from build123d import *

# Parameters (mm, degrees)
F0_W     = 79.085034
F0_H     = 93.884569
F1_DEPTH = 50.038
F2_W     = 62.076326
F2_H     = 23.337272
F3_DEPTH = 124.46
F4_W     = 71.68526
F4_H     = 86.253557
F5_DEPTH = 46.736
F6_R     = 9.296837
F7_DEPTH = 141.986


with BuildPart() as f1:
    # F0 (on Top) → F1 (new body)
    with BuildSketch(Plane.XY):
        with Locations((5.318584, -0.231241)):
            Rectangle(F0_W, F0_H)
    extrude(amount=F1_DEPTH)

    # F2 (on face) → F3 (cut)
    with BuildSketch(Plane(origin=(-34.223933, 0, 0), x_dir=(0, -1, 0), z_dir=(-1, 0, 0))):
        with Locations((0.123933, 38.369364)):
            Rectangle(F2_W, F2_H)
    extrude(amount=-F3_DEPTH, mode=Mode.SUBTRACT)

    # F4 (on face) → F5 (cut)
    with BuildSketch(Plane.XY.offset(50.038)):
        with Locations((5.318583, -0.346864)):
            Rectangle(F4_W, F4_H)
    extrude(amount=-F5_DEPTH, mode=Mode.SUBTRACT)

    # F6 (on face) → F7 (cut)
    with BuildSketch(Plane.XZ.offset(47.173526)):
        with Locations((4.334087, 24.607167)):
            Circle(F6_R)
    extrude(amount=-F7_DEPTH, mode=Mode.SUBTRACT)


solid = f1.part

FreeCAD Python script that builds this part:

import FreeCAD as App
import Part
import Sketcher
Q = App.Units.Quantity

doc = App.newDocument("Part")
body = doc.addObject("PartDesign::Body", "Body")

# Sketch on XY plane
sketch1 = body.newObject("Sketcher::SketchObject", "Sketch")
sketch1.AttachmentSupport = (doc.getObject("XY_Plane"), [""])
sketch1.MapMode = "FlatFace"
sketch1.addGeometry([
    Part.LineSegment(App.Vector(-34, 47, 0), App.Vector(-34, -47, 0)),
    Part.LineSegment(App.Vector(-34, -47, 0), App.Vector(45, -47, 0)),
    Part.LineSegment(App.Vector(45, -47, 0), App.Vector(45, 47, 0)),
    Part.LineSegment(App.Vector(45, 47, 0), App.Vector(-34, 47, 0)),
], False)
sketch1.addConstraint([
    Sketcher.Constraint("Coincident", 0, 2, 1, 1),
    Sketcher.Constraint("Coincident", 1, 2, 2, 1),
    Sketcher.Constraint("Coincident", 2, 2, 3, 1),
    Sketcher.Constraint("Coincident", 3, 2, 0, 1),
    Sketcher.Constraint("Vertical", 0),
    Sketcher.Constraint("Horizontal", 1),
    Sketcher.Constraint("Vertical", 2),
    Sketcher.Constraint("Horizontal", 3),
    Sketcher.Constraint("DistanceY", 0, 2, 0, 1, Q("93.884569 mm")),
    Sketcher.Constraint("DistanceX", -1, 1, 1, 2, Q("44.861101 mm")),
    Sketcher.Constraint("DistanceX", 1, 1, 1, 2, Q("79.085034 mm")),
    Sketcher.Constraint("DistanceY", 0, 2, -1, 1, Q("47.173525 mm")),
])
pad1 = body.newObject("PartDesign::Pad", "Pad")
pad1.Profile = sketch1
pad1.Length = Q("1.97 in")

# Sketch on YZ plane
sketch2 = body.newObject("Sketcher::SketchObject", "Sketch001")
sketch2.AttachmentSupport = (doc.getObject("YZ_Plane"), [""])
sketch2.MapMode = "FlatFace"
sketch2.AttachmentOffset = App.Placement(App.Vector(0, 0, -34.223933), App.Rotation())
sketch2.addGeometry([
    Part.LineSegment(App.Vector(31, 50, 0), App.Vector(31, 27, 0)),
    Part.LineSegment(App.Vector(31, 27, 0), App.Vector(-31, 27, 0)),
    Part.LineSegment(App.Vector(-31, 27, 0), App.Vector(-31, 50, 0)),
    Part.LineSegment(App.Vector(-31, 50, 0), App.Vector(31, 50, 0)),
], False)
sketch2.addConstraint([
    Sketcher.Constraint("Coincident", 0, 2, 1, 1),
    Sketcher.Constraint("Coincident", 1, 2, 2, 1),
    Sketcher.Constraint("Coincident", 2, 2, 3, 1),
    Sketcher.Constraint("Coincident", 3, 2, 0, 1),
    Sketcher.Constraint("Vertical", 0),
    Sketcher.Constraint("Horizontal", 1),
    Sketcher.Constraint("Vertical", 2),
    Sketcher.Constraint("Horizontal", 3),
    Sketcher.Constraint("DistanceY", -1, 1, 2, 2, Q("1.97 in")),
    Sketcher.Constraint("DistanceY", 0, 2, 0, 1, Q("23.337272 mm")),
    Sketcher.Constraint("DistanceX", 1, 2, 1, 1, Q("62.076326 mm")),
    Sketcher.Constraint("DistanceX", -1, 1, 0, 2, Q("30.91423 mm")),
])
pocket1 = body.newObject("PartDesign::Pocket", "Pocket")
pocket1.Profile = sketch2
pocket1.Length = Q("4.9 in")
pocket1.Reversed = True

# Sketch on XY plane
sketch3 = body.newObject("Sketcher::SketchObject", "Sketch002")
sketch3.AttachmentSupport = (doc.getObject("XY_Plane"), [""])
sketch3.MapMode = "FlatFace"
sketch3.AttachmentOffset = App.Placement(App.Vector(0, 0, 1.97 * 25.4), App.Rotation())
sketch3.addGeometry([
    Part.LineSegment(App.Vector(-31, 43, 0), App.Vector(-31, -43, 0)),
    Part.LineSegment(App.Vector(-31, -43, 0), App.Vector(41, -43, 0)),
    Part.LineSegment(App.Vector(41, -43, 0), App.Vector(41, 43, 0)),
    Part.LineSegment(App.Vector(41, 43, 0), App.Vector(-31, 43, 0)),
], False)
sketch3.addConstraint([
    Sketcher.Constraint("Coincident", 0, 2, 1, 1),
    Sketcher.Constraint("Coincident", 1, 2, 2, 1),
    Sketcher.Constraint("Coincident", 2, 2, 3, 1),
    Sketcher.Constraint("Coincident", 3, 2, 0, 1),
    Sketcher.Constraint("Vertical", 0),
    Sketcher.Constraint("Horizontal", 1),
    Sketcher.Constraint("Vertical", 2),
    Sketcher.Constraint("Horizontal", 3),
    Sketcher.Constraint("DistanceX", 1, 1, 1, 2, Q("71.68526 mm")),
    Sketcher.Constraint("DistanceY", 0, 2, 0, 1, Q("86.253557 mm")),
    Sketcher.Constraint("DistanceX", 0, 2, -1, 1, Q("30.524047 mm")),
    Sketcher.Constraint("DistanceY", 0, 2, -1, 1, Q("43.473642 mm")),
])
pocket2 = body.newObject("PartDesign::Pocket", "Pocket001")
pocket2.Profile = sketch3
pocket2.Length = Q("1.84 in")

# Sketch on XZ plane
sketch4 = body.newObject("Sketcher::SketchObject", "Sketch003")
sketch4.AttachmentSupport = (doc.getObject("XZ_Plane"), [""])
sketch4.MapMode = "FlatFace"
sketch4.AttachmentOffset = App.Placement(App.Vector(0, 0, 47.173526), App.Rotation())
sketch4.addGeometry(Part.Circle(App.Vector(4, 25, 0), App.Vector(0, 0, 1), 9), False)
sketch4.addConstraint([
    Sketcher.Constraint("Diameter", 0, Q("18.593674 mm")),
    Sketcher.Constraint("DistanceX", -1, 1, 0, 3, Q("4.334087 mm")),
    Sketcher.Constraint("DistanceY", -1, 1, 0, 3, Q("24.607167 mm")),
])
pocket3 = body.newObject("PartDesign::Pocket", "Pocket002")
pocket3.Profile = sketch4
pocket3.Length = Q("5.59 in")

doc.recompute()
